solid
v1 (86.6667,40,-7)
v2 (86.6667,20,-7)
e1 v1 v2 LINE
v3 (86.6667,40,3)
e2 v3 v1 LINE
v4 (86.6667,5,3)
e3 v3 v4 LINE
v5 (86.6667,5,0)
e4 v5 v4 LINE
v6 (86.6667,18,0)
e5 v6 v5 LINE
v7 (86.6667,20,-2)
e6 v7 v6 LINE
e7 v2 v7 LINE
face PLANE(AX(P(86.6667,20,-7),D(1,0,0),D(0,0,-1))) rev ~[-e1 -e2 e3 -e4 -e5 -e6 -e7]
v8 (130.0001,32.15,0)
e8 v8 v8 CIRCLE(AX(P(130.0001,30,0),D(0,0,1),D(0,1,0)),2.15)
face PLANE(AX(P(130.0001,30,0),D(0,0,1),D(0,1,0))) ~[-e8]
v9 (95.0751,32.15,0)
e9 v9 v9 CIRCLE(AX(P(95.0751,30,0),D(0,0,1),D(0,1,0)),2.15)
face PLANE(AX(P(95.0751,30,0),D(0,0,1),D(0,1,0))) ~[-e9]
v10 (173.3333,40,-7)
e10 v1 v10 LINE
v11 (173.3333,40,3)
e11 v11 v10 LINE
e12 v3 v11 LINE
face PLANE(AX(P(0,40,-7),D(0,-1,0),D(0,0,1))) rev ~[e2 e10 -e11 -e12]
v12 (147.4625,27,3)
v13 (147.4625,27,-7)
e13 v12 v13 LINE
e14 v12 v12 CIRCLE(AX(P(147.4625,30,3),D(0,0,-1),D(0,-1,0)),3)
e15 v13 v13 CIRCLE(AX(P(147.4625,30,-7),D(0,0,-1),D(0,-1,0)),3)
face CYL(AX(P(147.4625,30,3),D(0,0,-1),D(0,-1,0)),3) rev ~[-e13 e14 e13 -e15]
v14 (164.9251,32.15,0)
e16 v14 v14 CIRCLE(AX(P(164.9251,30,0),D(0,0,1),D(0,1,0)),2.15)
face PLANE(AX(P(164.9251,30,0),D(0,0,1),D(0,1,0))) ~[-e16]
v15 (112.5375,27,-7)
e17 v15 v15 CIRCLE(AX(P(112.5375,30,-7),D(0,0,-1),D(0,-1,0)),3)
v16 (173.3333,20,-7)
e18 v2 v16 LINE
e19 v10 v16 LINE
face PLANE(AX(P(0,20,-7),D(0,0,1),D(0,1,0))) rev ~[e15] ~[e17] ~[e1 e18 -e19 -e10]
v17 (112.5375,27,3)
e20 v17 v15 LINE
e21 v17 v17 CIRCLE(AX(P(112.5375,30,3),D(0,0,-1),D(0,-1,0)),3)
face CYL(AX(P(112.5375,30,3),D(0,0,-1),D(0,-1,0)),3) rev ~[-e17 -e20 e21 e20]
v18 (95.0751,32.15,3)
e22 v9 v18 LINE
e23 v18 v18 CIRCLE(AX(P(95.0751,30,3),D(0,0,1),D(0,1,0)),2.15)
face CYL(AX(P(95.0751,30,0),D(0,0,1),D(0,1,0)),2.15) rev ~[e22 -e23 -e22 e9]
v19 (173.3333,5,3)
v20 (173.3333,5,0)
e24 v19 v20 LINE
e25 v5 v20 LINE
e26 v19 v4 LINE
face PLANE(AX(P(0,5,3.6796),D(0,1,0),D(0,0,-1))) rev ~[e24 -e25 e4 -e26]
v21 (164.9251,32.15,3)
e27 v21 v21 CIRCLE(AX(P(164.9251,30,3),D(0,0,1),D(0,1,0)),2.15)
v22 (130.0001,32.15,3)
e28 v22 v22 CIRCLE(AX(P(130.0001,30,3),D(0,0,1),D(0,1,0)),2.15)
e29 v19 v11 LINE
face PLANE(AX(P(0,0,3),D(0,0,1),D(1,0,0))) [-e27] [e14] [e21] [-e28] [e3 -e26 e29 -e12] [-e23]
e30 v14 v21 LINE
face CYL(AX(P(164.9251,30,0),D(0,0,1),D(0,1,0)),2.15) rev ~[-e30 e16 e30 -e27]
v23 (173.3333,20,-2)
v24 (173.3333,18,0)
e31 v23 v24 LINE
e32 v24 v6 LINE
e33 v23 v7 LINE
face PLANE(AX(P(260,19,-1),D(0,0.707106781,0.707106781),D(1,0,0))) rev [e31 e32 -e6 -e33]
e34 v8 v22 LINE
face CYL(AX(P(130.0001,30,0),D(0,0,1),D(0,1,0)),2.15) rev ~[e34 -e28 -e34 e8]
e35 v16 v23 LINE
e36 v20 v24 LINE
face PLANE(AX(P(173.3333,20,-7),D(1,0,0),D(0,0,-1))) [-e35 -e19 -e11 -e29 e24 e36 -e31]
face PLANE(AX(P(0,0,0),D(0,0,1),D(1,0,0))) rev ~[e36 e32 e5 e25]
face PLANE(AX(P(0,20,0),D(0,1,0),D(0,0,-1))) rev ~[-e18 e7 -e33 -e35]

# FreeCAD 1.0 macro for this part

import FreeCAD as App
import Part
import Sketcher


def edges_at(feature, points):
    """Names of the edges that pass closest to the given points."""
    edges = feature.Shape.Edges
    near = lambda p: min(range(len(edges)), key=lambda i: edges[i].distToShape(Part.Vertex(*p))[0])
    return sorted({f"Edge{near(p) + 1}" for p in points})

doc = App.newDocument("Part")
body = doc.addObject("PartDesign::Body", "Body")

sketch1 = doc.addObject("Sketcher::SketchObject", "Sketch")
body.addObject(sketch1)
sketch1.AttachmentSupport = (doc.XY_Plane, [""])
sketch1.MapMode = "FlatFace"
sketch1.addGeometry([
    Part.LineSegment(App.Vector(0, 20, 0), App.Vector(0, 0, 0)),
    Part.LineSegment(App.Vector(0, 0, 0), App.Vector(260, 0, 0)),
    Part.LineSegment(App.Vector(260, 0, 0), App.Vector(260, 20, 0)),
    Part.LineSegment(App.Vector(260, 20, 0), App.Vector(0, 20, 0)),
], False)
sketch1.addConstraint([
    Sketcher.Constraint("Coincident", 0, 2, 1, 1),
    Sketcher.Constraint("Coincident", 1, 2, 2, 1),
    Sketcher.Constraint("Coincident", 2, 2, 3, 1),
    Sketcher.Constraint("Coincident", 3, 2, 0, 1),
    Sketcher.Constraint("Vertical", 0),
    Sketcher.Constraint("Horizontal", 1),
    Sketcher.Constraint("Vertical", 2),
    Sketcher.Constraint("Horizontal", 3),
    Sketcher.Constraint("Coincident", 0, 2, -1, 1),
    Sketcher.Constraint("DistanceX", 1, 1, 1, 2, 260.0),
    Sketcher.Constraint("DistanceY", 0, 2, 0, 1, 20.0),
])
pad1 = doc.addObject("PartDesign::Pad", "Pad")
body.addObject(pad1)
pad1.Profile = sketch1
pad1.Length = 3

sketch2 = doc.addObject("Sketcher::SketchObject", "Sketch001")
body.addObject(sketch2)
sketch2.AttachmentSupport = (doc.YZ_Plane, [""])
sketch2.MapMode = "FlatFace"
sketch2.addGeometry([
    Part.LineSegment(App.Vector(20, -7, 0), App.Vector(20, 3, 0)),
    Part.LineSegment(App.Vector(20, 3, 0), App.Vector(40, 3, 0)),
    Part.LineSegment(App.Vector(40, 3, 0), App.Vector(40, -7, 0)),
    Part.LineSegment(App.Vector(40, -7, 0), App.Vector(20, -7, 0)),
], False)
sketch2.addConstraint([
    Sketcher.Constraint("Coincident", 0, 2, 1, 1),
    Sketcher.Constraint("Coincident", 1, 2, 2, 1),
    Sketcher.Constraint("Coincident", 2, 2, 3, 1),
    Sketcher.Constraint("Coincident", 3, 2, 0, 1),
    Sketcher.Constraint("Vertical", 0),
    Sketcher.Constraint("Horizontal", 1),
    Sketcher.Constraint("Vertical", 2),
    Sketcher.Constraint("Horizontal", 3),
    Sketcher.Constraint("DistanceX", 1, 1, 1, 2, 20.0),
    Sketcher.Constraint("DistanceY", 0, 1, 0, 2, 10.0),
    Sketcher.Constraint("DistanceX", -1, 1, 0, 2, 20.0),
    Sketcher.Constraint("DistanceY", -1, 1, 0, 2, 3.0),
])
pad2 = doc.addObject("PartDesign::Pad", "Pad001")
body.addObject(pad2)
pad2.Profile = sketch2
pad2.Length = 260

sketch3 = doc.addObject("Sketcher::SketchObject", "Sketch002")
body.addObject(sketch3)
sketch3.AttachmentSupport = (doc.XY_Plane, [""])
sketch3.MapMode = "FlatFace"
sketch3.AttachmentOffset = App.Placement(App.Vector(0, 0, 3), App.Rotation())
sketch3.addGeometry([
    Part.Circle(App.Vector(42.7, 30, 0), App.Vector(0, 0, 1), 3),
    Part.Circle(App.Vector(77.6, 30, 0), App.Vector(0, 0, 1), 3),
    Part.Circle(App.Vector(182.4, 30, 0), App.Vector(0, 0, 1), 3),
    Part.Circle(App.Vector(217.3, 30, 0), App.Vector(0, 0, 1), 3),
    Part.Circle(App.Vector(112.5, 30, 0), App.Vector(0, 0, 1), 3),
    Part.Circle(App.Vector(147.5, 30, 0), App.Vector(0, 0, 1), 3),
], False)
sketch3.addConstraint([
    Sketcher.Constraint("Equal", 0, 1),
    Sketcher.Constraint("Equal", 1, 2),
    Sketcher.Constraint("Equal", 2, 3),
    Sketcher.Constraint("Equal", 3, 4),
    Sketcher.Constraint("Equal", 4, 5),
    Sketcher.Constraint("Horizontal", 0, 3, 1, 3),
    Sketcher.Constraint("Horizontal", 1, 3, 2, 3),
    Sketcher.Constraint("Horizontal", 2, 3, 3, 3),
    Sketcher.Constraint("Horizontal", 3, 3, 4, 3),
    Sketcher.Constraint("Horizontal", 4, 3, 5, 3),
    Sketcher.Constraint("Diameter", 0, 6.0),
    Sketcher.Constraint("DistanceY", -1, 1, 0, 3, 30.0),
    Sketcher.Constraint("DistanceX", 0, 3, 2, 3, 139.7),
    Sketcher.Constraint("DistanceX", 1, 3, 3, 3, 139.7),
    Sketcher.Constraint("DistanceX", 0, 3, 4, 3, 69.85),
    Sketcher.Constraint("DistanceX", 5, 3, 3, 3, 69.85),
    Sketcher.Constraint("DistanceX", 0, 3, 1, 3, 34.925),
    Sketcher.Constraint("DistanceX", -1, 1, 0, 3, 42.6875),
])
doc.recompute()
hole = doc.addObject("PartDesign::Hole", "Hole")
body.addObject(hole)
hole.Profile = sketch3
hole.ThreadType = "None"
hole.Diameter = 6
hole.DepthType = "ThroughAll"

sketch4 = doc.addObject("Sketcher::SketchObject", "Sketch003")
body.addObject(sketch4)
sketch4.AttachmentSupport = (doc.XY_Plane, [""])
sketch4.MapMode = "FlatFace"
sketch4.addGeometry(Part.Circle(App.Vector(25.2, 30, 0), App.Vector(0, 0, 1), 2.1), False)
sketch4.addConstraint([
    Sketcher.Constraint("Diameter", 0, 4.3),
    Sketcher.Constraint("DistanceY", -1, 1, 0, 3, 30.0),
    Sketcher.Constraint("DistanceX", -1, 1, 0, 3, 25.225),
])
doc.recompute()
hole2 = doc.addObject("PartDesign::Hole", "Hole001")
body.addObject(hole2)
hole2.Profile = sketch4
hole2.ThreadType = "None"
hole2.Diameter = 4.3
hole2.DepthType = "Dimension"
hole2.Depth = 6
hole2.DrillPoint = "Flat"
hole2.Reversed = True
doc.recompute()

linearpattern = doc.addObject("PartDesign::LinearPattern", "LinearPattern")
body.addObject(linearpattern)
linearpattern.Originals = [hole2]
linearpattern.Direction = (doc.X_Axis, [""])
linearpattern.Mode = "offset"
linearpattern.Offset = 34.925
linearpattern.Occurrences = 7
body.Tip = linearpattern
doc.recompute()

chamfer = doc.addObject("PartDesign::Chamfer", "Chamfer")
body.addObject(chamfer)
chamfer.Base = (linearpattern, edges_at(linearpattern, [(130, 20, 0)]))
chamfer.Size = 2

sketch5 = doc.addObject("Sketcher::SketchObject", "Sketch004")
body.addObject(sketch5)
sketch5.AttachmentSupport = (doc.YZ_Plane, [""])
sketch5.MapMode = "FlatFace"
sketch5.addGeometry([
    Part.LineSegment(App.Vector(5, 0, 0), App.Vector(0, 0, 0)),
    Part.LineSegment(App.Vector(0, 0, 0), App.Vector(0, 3.7, 0)),
    Part.LineSegment(App.Vector(0, 3.7, 0), App.Vector(5, 3.7, 0)),
    Part.LineSegment(App.Vector(5, 3.7, 0), App.Vector(5, 0, 0)),
], False)
sketch5.addConstraint([
    Sketcher.Constraint("Coincident", 0, 2, 1, 1),
    Sketcher.Constraint("Coincident", 1, 2, 2, 1),
    Sketcher.Constraint("Coincident", 2, 2, 3, 1),
    Sketcher.Constraint("Coincident", 3, 2, 0, 1),
    Sketcher.Constraint("Horizontal", 0),
    Sketcher.Constraint("Vertical", 1),
    Sketcher.Constraint("Horizontal", 2),
    Sketcher.Constraint("Vertical", 3),
    Sketcher.Constraint("Coincident", 0, 2, -1, 1),
    Sketcher.Constraint("DistanceX", 0, 2, 0, 1, 5.0),
    Sketcher.Constraint("DistanceY", 1, 1, 1, 2, 3.6796),
])
pocket1 = doc.addObject("PartDesign::Pocket", "Pocket")
body.addObject(pocket1)
pocket1.Profile = sketch5
pocket1.Type = "ThroughAll"
pocket1.Reversed = True

sketch6 = doc.addObject("Sketcher::SketchObject", "Sketch005")
body.addObject(sketch6)
sketch6.AttachmentSupport = (doc.YZ_Plane, [""])
sketch6.MapMode = "FlatFace"
sketch6.AttachmentOffset = App.Placement(App.Vector(0, 0, 173.3333), App.Rotation())
sketch6.addGeometry([
    Part.LineSegment(App.Vector(40, 3, 0), App.Vector(5, 3, 0)),
    Part.LineSegment(App.Vector(5, 3, 0), App.Vector(5, 0, 0)),
    Part.LineSegment(App.Vector(5, 0, 0), App.Vector(18, 0, 0)),
    Part.LineSegment(App.Vector(18, 0, 0), App.Vector(20, -2, 0)),
    Part.LineSegment(App.Vector(20, -2, 0), App.Vector(20, -7, 0)),
    Part.LineSegment(App.Vector(20, -7, 0), App.Vector(40, -7, 0)),
    Part.LineSegment(App.Vector(40, -7, 0), App.Vector(40, 3, 0)),
], False)
sketch6.addConstraint([
    Sketcher.Constraint("Coincident", 0, 2, 1, 1),
    Sketcher.Constraint("Coincident", 1, 2, 2, 1),
    Sketcher.Constraint("Coincident", 2, 2, 3, 1),
    Sketcher.Constraint("Coincident", 3, 2, 4, 1),
    Sketcher.Constraint("Coincident", 4, 2, 5, 1),
    Sketcher.Constraint("Coincident", 5, 2, 6, 1),
    Sketcher.Constraint("Coincident", 6, 2, 0, 1),
    Sketcher.Constraint("Horizontal", 0),
    Sketcher.Constraint("Vertical", 1),
    Sketcher.Constraint("Horizontal", 2),
    Sketcher.Constraint("Vertical", 4),
    Sketcher.Constraint("Horizontal", 5),
    Sketcher.Constraint("Vertical", 6),
    Sketcher.Constraint("PointOnObject", 1, 2, -1),
    Sketcher.Constraint("DistanceX", 0, 2, 0, 1, 35.0),
    Sketcher.Constraint("DistanceX", 2, 1, 2, 2, 13.0),
    Sketcher.Constraint("DistanceX", 5, 1, 5, 2, 20.0),
    Sketcher.Constraint("DistanceY", 1, 2, 1, 1, 3.0),
    Sketcher.Constraint("DistanceY", 4, 2, 4, 1, 5.0),
    Sketcher.Constraint("DistanceY", 6, 1, 6, 2, 10.0),
    Sketcher.Constraint("DistanceX", -1, 1, 0, 2, 5.0),
])
pocket2 = doc.addObject("PartDesign::Pocket", "Pocket001")
body.addObject(pocket2)
pocket2.Profile = sketch6
pocket2.Type = "ThroughAll"
pocket2.Reversed = True

sketch7 = doc.addObject("Sketcher::SketchObject", "Sketch006")
body.addObject(sketch7)
sketch7.AttachmentSupport = (doc.YZ_Plane, [""])
sketch7.MapMode = "FlatFace"
sketch7.AttachmentOffset = App.Placement(App.Vector(0, 0, 86.6667), App.Rotation())
sketch7.addGeometry([
    Part.LineSegment(App.Vector(20, -7, 0), App.Vector(40, -7, 0)),
    Part.LineSegment(App.Vector(40, -7, 0), App.Vector(40, 3, 0)),
    Part.LineSegment(App.Vector(40, 3, 0), App.Vector(5, 3, 0)),
    Part.LineSegment(App.Vector(5, 3, 0), App.Vector(5, 0, 0)),
    Part.LineSegment(App.Vector(5, 0, 0), App.Vector(18, 0, 0)),
    Part.LineSegment(App.Vector(18, 0, 0), App.Vector(20, -2, 0)),
    Part.LineSegment(App.Vector(20, -2, 0), App.Vector(20, -7, 0)),
], False)
sketch7.addConstraint([
    Sketcher.Constraint("Coincident", 0, 2, 1, 1),
    Sketcher.Constraint("Coincident", 1, 2, 2, 1),
    Sketcher.Constraint("Coincident", 2, 2, 3, 1),
    Sketcher.Constraint("Coincident", 3, 2, 4, 1),
    Sketcher.Constraint("Coincident", 4, 2, 5, 1),
    Sketcher.Constraint("Coincident", 5, 2, 6, 1),
    Sketcher.Constraint("Coincident", 6, 2, 0, 1),
    Sketcher.Constraint("Horizontal", 0),
    Sketcher.Constraint("Vertical", 1),
    Sketcher.Constraint("Horizontal", 2),
    Sketcher.Constraint("Vertical", 3),
    Sketcher.Constraint("Horizontal", 4),
    Sketcher.Constraint("Vertical", 6),
    Sketcher.Constraint("PointOnObject", 3, 2, -1),
    Sketcher.Constraint("DistanceX", 0, 1, 0, 2, 20.0),
    Sketcher.Constraint("DistanceX", 2, 2, 2, 1, 35.0),
    Sketcher.Constraint("DistanceX", 4, 1, 4, 2, 13.0),
    Sketcher.Constraint("DistanceY", 1, 1, 1, 2, 10.0),
    Sketcher.Constraint("DistanceY", 3, 2, 3, 1, 3.0),
    Sketcher.Constraint("DistanceY", 6, 2, 6, 1, 5.0),
    Sketcher.Constraint("DistanceX", -1, 1, 0, 2, 40.0),
])
pocket3 = doc.addObject("PartDesign::Pocket", "Pocket002")
body.addObject(pocket3)
pocket3.Profile = sketch7
pocket3.Type = "ThroughAll"

doc.recompute()
